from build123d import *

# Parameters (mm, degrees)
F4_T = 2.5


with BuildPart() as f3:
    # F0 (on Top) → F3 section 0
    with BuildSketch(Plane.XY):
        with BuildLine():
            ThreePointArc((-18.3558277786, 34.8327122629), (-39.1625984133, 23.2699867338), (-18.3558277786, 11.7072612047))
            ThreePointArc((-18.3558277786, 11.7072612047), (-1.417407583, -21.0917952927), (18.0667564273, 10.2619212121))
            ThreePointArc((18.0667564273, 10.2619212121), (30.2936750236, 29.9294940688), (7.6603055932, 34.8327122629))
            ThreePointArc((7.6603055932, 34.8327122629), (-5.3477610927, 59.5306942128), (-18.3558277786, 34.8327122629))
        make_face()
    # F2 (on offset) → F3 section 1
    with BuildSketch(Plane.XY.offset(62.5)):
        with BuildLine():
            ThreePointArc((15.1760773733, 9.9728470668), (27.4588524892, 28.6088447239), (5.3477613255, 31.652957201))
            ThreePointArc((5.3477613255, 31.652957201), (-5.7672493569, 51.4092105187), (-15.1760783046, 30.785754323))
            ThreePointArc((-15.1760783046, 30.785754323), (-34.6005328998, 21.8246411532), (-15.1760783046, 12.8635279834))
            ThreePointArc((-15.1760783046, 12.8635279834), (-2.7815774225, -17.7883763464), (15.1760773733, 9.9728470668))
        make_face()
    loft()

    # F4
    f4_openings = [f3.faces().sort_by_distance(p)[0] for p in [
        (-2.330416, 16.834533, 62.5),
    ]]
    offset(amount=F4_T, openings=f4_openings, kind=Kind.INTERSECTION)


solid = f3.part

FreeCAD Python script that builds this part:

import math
import FreeCAD as App
import Part
import Sketcher


def faces_at(feature, points):
    """Names of the faces that lie closest to the given points."""
    faces = feature.Shape.Faces
    near = lambda p: min(range(len(faces)), key=lambda i: faces[i].distToShape(Part.Vertex(*p))[0])
    return sorted({f"Face{near(p) + 1}" for p in points})

doc = App.newDocument("Part")
params = doc.addObject("Spreadsheet::Sheet", "Params")
for row, (alias, value) in enumerate([
    ("thickness_wall", "2.5 mm"),
], start=1):
    params.set(f"A{row}", alias)
    params.set(f"B{row}", "=" + value)
    params.setAlias(f"B{row}", alias)

body = doc.addObject("PartDesign::Body", "Body")

sketch1 = doc.addObject("Sketcher::SketchObject", "Sketch")
body.addObject(sketch1)
sketch1.AttachmentSupport = (doc.XY_Plane, [""])
sketch1.MapMode = "FlatFace"
sketch1.addGeometry(Part.ArcOfCircle(Part.Circle(App.Vector(-26, 23, 0), App.Vector(0, 0, 1), 14), math.radians(58), math.radians(302)), False)
sketch1.addGeometry(Part.ArcOfCircle(Part.Circle(App.Vector(-1, 0, 0), App.Vector(0, 0, 1), 21), math.radians(147), math.radians(389)), False)
sketch1.addGeometry(Part.ArcOfCircle(Part.Circle(App.Vector(17, 24, 0), App.Vector(0, 0, 1), 14), math.radians(-87), math.radians(133)), False)
sketch1.addGeometry(Part.ArcOfCircle(Part.Circle(App.Vector(-5, 44, 0), App.Vector(0, 0, 1), 16), math.radians(-34), math.radians(214)), False)
sketch1.addConstraint(Sketcher.Constraint("Coincident", 0, 2, 1, 1))
sketch1.addConstraint(Sketcher.Constraint("Coincident", 1, 2, 2, 1))
sketch1.addConstraint(Sketcher.Constraint("Coincident", 2, 2, 3, 1))
sketch1.addConstraint(Sketcher.Constraint("Coincident", 3, 2, 0, 1))
sketch1.addConstraint(Sketcher.Constraint("Horizontal", 2, 2, 3, 2))
sketch1.addConstraint(Sketcher.Constraint("Vertical", 0, 2, 3, 2))
sketch1.addConstraint(Sketcher.Constraint("Radius", 0, 13.616201))
sketch1.addConstraint(Sketcher.Constraint("Radius", 3, 15.77457))
sketch1.addConstraint(Sketcher.Constraint("Radius", 1, 21.224594))
sketch1.addConstraint(Sketcher.Constraint("Radius", 2, 14.166395))
sketch1.addConstraint(Sketcher.Constraint("DistanceX", 3, 3, -1, 1, 5.347761))
sketch1.addConstraint(Sketcher.Constraint("DistanceY", -1, 1, 0, 2, 11.707261))
sketch1.addConstraint(Sketcher.Constraint("DistanceY", -1, 1, 1, 2, 10.261921))
sketch1.addConstraint(Sketcher.Constraint("DistanceY", 1, 3, 0, 3, 23.15388))
sketch1.addConstraint(Sketcher.Constraint("DistanceX", 3, 3, 2, 3, 22.596769))
sketch1.addConstraint(Sketcher.Constraint("DistanceY", 2, 3, 3, 3, 19.351429))

sketch2 = doc.addObject("Sketcher::SketchObject", "Sketch001")
body.addObject(sketch2)
sketch2.AttachmentSupport = (doc.XY_Plane, [""])
sketch2.MapMode = "FlatFace"
sketch2.AttachmentOffset = App.Placement(App.Vector(0, 0, 62.5), App.Rotation())
sketch2.addGeometry(Part.ArcOfCircle(Part.Circle(App.Vector(15.443882, 23.162058, 0), App.Vector(0, 0, 1), 13.19193), math.radians(-91.163219), math.radians(139.935959)), False)
sketch2.addGeometry(Part.ArcOfCircle(Part.Circle(App.Vector(-5.23051, 38.706364, 0), App.Vector(0, 0, 1), 12.714181), math.radians(-33.694665), math.radians(218.533674)), False)
sketch2.addGeometry(Part.ArcOfCircle(Part.Circle(App.Vector(-22.821284, 21.824641, 0), App.Vector(0, 0, 1), 11.779249), math.radians(49.53073), math.radians(310.46927)), False)
sketch2.addGeometry(Part.ArcOfCircle(Part.Circle(App.Vector(-1.015281, 0.757741, 0), App.Vector(0, 0, 1), 18.630037), math.radians(139.473519), math.radians(389.645819)), False)
sketch2.addConstraint(Sketcher.Constraint("Coincident", 0, 2, 1, 1))
sketch2.addConstraint(Sketcher.Constraint("Coincident", 1, 2, 2, 1))
sketch2.addConstraint(Sketcher.Constraint("Coincident", 2, 2, 3, 1))
sketch2.addConstraint(Sketcher.Constraint("Coincident", 3, 2, 0, 1))
sketch2.addConstraint(Sketcher.Constraint("Radius", 0, 13.19193))
sketch2.addConstraint(Sketcher.Constraint("Radius", 1, 12.714181))
sketch2.addConstraint(Sketcher.Constraint("Radius", 2, 11.779249))
sketch2.addConstraint(Sketcher.Constraint("Radius", 3, 18.630037))
sketch2.addConstraint(Sketcher.Constraint("DistanceY", 3, 3, 2, 3, 21.0669))
sketch2.addConstraint(Sketcher.Constraint("DistanceY", 0, 3, 0, 2, 8.490899))
sketch2.addConstraint(Sketcher.Constraint("DistanceX", -1, 1, 0, 3, 15.443882))
sketch2.addConstraint(Sketcher.Constraint("DistanceY", -1, 1, 0, 3, 23.162058))
sketch2.addConstraint(Sketcher.Constraint("DistanceX", 1, 3, -1, 1, 5.23051))
sketch2.addConstraint(Sketcher.Constraint("DistanceY", -1, 1, 2, 3, 21.824641))
sketch2.addConstraint(Sketcher.Constraint("DistanceX", 3, 3, -1, 1, 1.015281))
sketch2.addConstraint(Sketcher.Constraint("DistanceX", 1, 2, -1, 1, 15.176078))

additiveloft = doc.addObject("PartDesign::AdditiveLoft", "AdditiveLoft")
body.addObject(additiveloft)
additiveloft.Profile = sketch1
additiveloft.Sections = [sketch2]
doc.recompute()

thickness = doc.addObject("PartDesign::Thickness", "Thickness")
body.addObject(thickness)
thickness.Base = (additiveloft, faces_at(additiveloft, [(-2.687, 16.833, 62.5)]))
thickness.setExpression("Value", "Params.thickness_wall")
thickness.Reversed = False
thickness.Join = "Intersection"

doc.recompute()
